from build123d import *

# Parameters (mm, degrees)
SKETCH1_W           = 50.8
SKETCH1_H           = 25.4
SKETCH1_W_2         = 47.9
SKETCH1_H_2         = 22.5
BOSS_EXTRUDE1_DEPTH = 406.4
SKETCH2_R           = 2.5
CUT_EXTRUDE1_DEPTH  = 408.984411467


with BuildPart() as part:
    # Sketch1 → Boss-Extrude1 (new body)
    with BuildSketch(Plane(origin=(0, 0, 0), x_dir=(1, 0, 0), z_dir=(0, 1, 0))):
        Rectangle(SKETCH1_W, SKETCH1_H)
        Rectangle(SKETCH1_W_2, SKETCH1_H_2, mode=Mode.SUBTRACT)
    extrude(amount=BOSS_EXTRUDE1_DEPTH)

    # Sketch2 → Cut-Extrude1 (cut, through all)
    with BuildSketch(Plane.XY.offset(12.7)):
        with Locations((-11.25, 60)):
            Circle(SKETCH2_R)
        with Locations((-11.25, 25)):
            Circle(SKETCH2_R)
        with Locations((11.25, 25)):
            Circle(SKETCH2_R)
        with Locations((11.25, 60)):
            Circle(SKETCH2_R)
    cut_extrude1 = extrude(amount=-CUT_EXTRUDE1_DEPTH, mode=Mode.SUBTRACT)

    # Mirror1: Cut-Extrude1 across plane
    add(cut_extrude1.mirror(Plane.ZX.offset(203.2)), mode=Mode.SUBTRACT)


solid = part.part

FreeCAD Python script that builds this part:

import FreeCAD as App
import Part
import Sketcher

V = App.Vector
Q = App.Units.Quantity


def add_polygon(sketch, points):
    """Adds a closed chain of lines whose ends are joined by coincident constraints."""
    first, n = sketch.GeometryCount, len(points)
    for a, b in zip(points, points[1:] + points[:1]):
        sketch.addGeometry(Part.LineSegment(App.Vector(*a, 0), App.Vector(*b, 0)), False)
    for i in range(n):
        sketch.addConstraint(Sketcher.Constraint("Coincident", first + i, 2, first + (i + 1) % n, 1))

doc = App.newDocument("Part")
body = doc.addObject("PartDesign::Body", "Body")

# Sketch on XZ plane
sketch1 = doc.addObject("Sketcher::SketchObject", "Sketch")
body.addObject(sketch1)
sketch1.AttachmentSupport = (doc.XZ_Plane, [""])
sketch1.MapMode = "FlatFace"
add_polygon(sketch1, [(-25.4, -12.7), (-25.4, 12.7), (25.4, 12.7), (25.4, -12.7)])  # lines 0-3
add_polygon(sketch1, [(23.95, 11.25), (-23.95, 11.25), (-23.95, -11.25), (23.95, -11.25)])  # lines 4-7
sketch1.addConstraint(Sketcher.Constraint("Vertical", 0))
sketch1.addConstraint(Sketcher.Constraint("Horizontal", 1))
sketch1.addConstraint(Sketcher.Constraint("Vertical", 2))
sketch1.addConstraint(Sketcher.Constraint("Horizontal", 3))
sketch1.addConstraint(Sketcher.Constraint("Horizontal", 4))
sketch1.addConstraint(Sketcher.Constraint("Vertical", 5))
sketch1.addConstraint(Sketcher.Constraint("Horizontal", 6))
sketch1.addConstraint(Sketcher.Constraint("Vertical", 7))
sketch1.addConstraint(Sketcher.Constraint("Symmetric", 0, 2, 2, 2, -1, 1))
sketch1.addConstraint(Sketcher.Constraint("Symmetric", 4, 2, 6, 2, -1, 1))
sketch1.addConstraint(Sketcher.Constraint("DistanceX", 1, 1, 1, 2, Q("50.8 mm")))
sketch1.addConstraint(Sketcher.Constraint("DistanceX", 4, 2, 4, 1, Q("47.9 mm")))
sketch1.addConstraint(Sketcher.Constraint("DistanceY", 0, 1, 0, 2, Q("25.4 mm")))
sketch1.addConstraint(Sketcher.Constraint("DistanceY", 5, 2, 5, 1, Q("22.5 mm")))
pad1 = doc.addObject("PartDesign::Pad", "Pad")
body.addObject(pad1)
pad1.Profile = sketch1
pad1.Length = 406.4
pad1.Reversed = True

# Sketch on XY plane
sketch2 = doc.addObject("Sketcher::SketchObject", "Sketch001")
body.addObject(sketch2)
sketch2.AttachmentSupport = (doc.XY_Plane, [""])
sketch2.MapMode = "FlatFace"
sketch2.AttachmentOffset = App.Placement(V(0, 0, 12.7), App.Rotation())
sketch2.addGeometry(Part.Circle(V(-11.25, 60, 0), V(0, 0, 1), 2.5), False)
sketch2.addGeometry(Part.Circle(V(-11.25, 25, 0), V(0, 0, 1), 2.5), False)
sketch2.addGeometry(Part.Circle(V(11.25, 25, 0), V(0, 0, 1), 2.5), False)
sketch2.addGeometry(Part.Circle(V(11.25, 60, 0), V(0, 0, 1), 2.5), False)
sketch2.addConstraint(Sketcher.Constraint("Equal", 0, 1))
sketch2.addConstraint(Sketcher.Constraint("Equal", 1, 2))
sketch2.addConstraint(Sketcher.Constraint("Equal", 2, 3))
sketch2.addConstraint(Sketcher.Constraint("Symmetric", 1, 3, 2, 3, -2))
sketch2.addConstraint(Sketcher.Constraint("Symmetric", 0, 3, 3, 3, -2))
sketch2.addConstraint(Sketcher.Constraint("Vertical", 0, 3, 1, 3))
sketch2.addConstraint(Sketcher.Constraint("Diameter", 0, Q("5 mm")))
sketch2.addConstraint(Sketcher.Constraint("DistanceY", -1, 1, 0, 3, Q("60 mm")))
sketch2.addConstraint(Sketcher.Constraint("DistanceY", -1, 1, 1, 3, Q("25 mm")))
sketch2.addConstraint(Sketcher.Constraint("DistanceX", 1, 3, 2, 3, Q("22.5 mm")))
pocket1 = doc.addObject("PartDesign::Pocket", "Pocket")
body.addObject(pocket1)
pocket1.Profile = sketch2
pocket1.Type = "ThroughAll"
doc.recompute()

datumplane = doc.addObject("PartDesign::Plane", "DatumPlane")
body.addObject(datumplane)
datumplane.AttachmentSupport = (doc.XZ_Plane, [""])
datumplane.MapMode = "FlatFace"
datumplane.AttachmentOffset = App.Placement(V(0, 0, -203.2), App.Rotation())
mirrored = doc.addObject("PartDesign::Mirrored", "Mirrored")
body.addObject(mirrored)
mirrored.Originals = [pocket1]
mirrored.MirrorPlane = (datumplane, [""])
body.Tip = mirrored

doc.recompute()
